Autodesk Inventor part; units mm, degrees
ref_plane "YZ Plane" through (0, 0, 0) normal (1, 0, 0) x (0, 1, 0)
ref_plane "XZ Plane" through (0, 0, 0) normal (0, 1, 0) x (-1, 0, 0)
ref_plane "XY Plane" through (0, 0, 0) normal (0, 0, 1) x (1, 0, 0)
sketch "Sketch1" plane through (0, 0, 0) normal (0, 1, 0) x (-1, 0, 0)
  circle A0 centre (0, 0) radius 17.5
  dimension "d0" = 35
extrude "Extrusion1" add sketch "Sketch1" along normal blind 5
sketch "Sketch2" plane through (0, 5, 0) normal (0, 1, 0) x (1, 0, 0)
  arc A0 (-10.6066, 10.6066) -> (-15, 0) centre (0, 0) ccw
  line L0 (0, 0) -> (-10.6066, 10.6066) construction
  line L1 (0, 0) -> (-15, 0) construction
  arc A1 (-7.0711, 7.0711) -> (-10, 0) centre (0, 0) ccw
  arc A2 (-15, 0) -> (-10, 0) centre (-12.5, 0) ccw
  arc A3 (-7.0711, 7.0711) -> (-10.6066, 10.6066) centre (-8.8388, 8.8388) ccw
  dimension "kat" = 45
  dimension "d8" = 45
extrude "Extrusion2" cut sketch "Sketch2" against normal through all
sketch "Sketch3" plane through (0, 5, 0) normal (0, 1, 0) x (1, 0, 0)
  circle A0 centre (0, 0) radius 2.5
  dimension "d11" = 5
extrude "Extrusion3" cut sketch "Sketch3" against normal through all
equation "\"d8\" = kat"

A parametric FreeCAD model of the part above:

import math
import FreeCAD as App
import Part
import Sketcher

V = App.Vector
Q = App.Units.Quantity

doc = App.newDocument("Part")
body = doc.addObject("PartDesign::Body", "Body")

# Sketch on XZ plane
sketch1 = body.newObject("Sketcher::SketchObject", "Sketch")
sketch1.AttachmentSupport = (doc.getObject("XZ_Plane"), [""])
sketch1.MapMode = "FlatFace"
sketch1.addGeometry(Part.Circle(V(0, 0, 0), V(0, 0, 1), 18), False)
sketch1.addConstraint(Sketcher.Constraint("Coincident", 0, 3, -1, 1))
sketch1.addConstraint(Sketcher.Constraint("Diameter", 0, Q("35 mm")))
pad1 = body.newObject("PartDesign::Pad", "Pad")
pad1.Profile = sketch1
pad1.Length = 5
pad1.Reversed = True

# Sketch on XZ plane
sketch2 = body.newObject("Sketcher::SketchObject", "Sketch001")
sketch2.AttachmentSupport = (doc.getObject("XZ_Plane"), [""])
sketch2.MapMode = "FlatFace"
sketch2.AttachmentOffset = App.Placement(V(0, 0, -5), App.Rotation())
sketch2.addGeometry(Part.ArcOfCircle(Part.Circle(V(-8.8, -8.8, 0), V(0, 0, 1), 2.5), math.radians(-135), math.radians(45)), False)
sketch2.addGeometry(Part.ArcOfCircle(Part.Circle(V(0, 0, 0), V(0, 0, 1), 15), math.radians(180), math.radians(225)), False)
sketch2.addGeometry(Part.ArcOfCircle(Part.Circle(V(-12.5, 0, 0), V(0, 0, 1), 2.5), math.radians(0), math.radians(180)), False)
sketch2.addGeometry(Part.ArcOfCircle(Part.Circle(V(0, 0, 0), V(0, 0, 1), 10), math.radians(180), math.radians(225)), False)
sketch2.addConstraint(Sketcher.Constraint("Tangent", 0, 1, 1, 2))
sketch2.addConstraint(Sketcher.Constraint("Tangent", 1, 1, 2, 2))
sketch2.addConstraint(Sketcher.Constraint("Tangent", 2, 1, 3, 1))
sketch2.addConstraint(Sketcher.Constraint("Tangent", 3, 2, 0, 2))
sketch2.addConstraint(Sketcher.Constraint("Coincident", 1, 3, -1, 1))
sketch2.addConstraint(Sketcher.Constraint("Coincident", 3, 3, -1, 1))
sketch2.addConstraint(Sketcher.Constraint("PointOnObject", 2, 3, -1))
sketch2.addConstraint(Sketcher.Constraint("Radius", 1, Q("15 mm")))
sketch2.addConstraint(Sketcher.Constraint("Radius", 3, Q("10 mm")))
sketch2.addConstraint(Sketcher.Constraint("DistanceX", 3, 2, -1, 1, Q("7.071 mm")))
pocket1 = body.newObject("PartDesign::Pocket", "Pocket")
pocket1.Profile = sketch2
pocket1.Type = "ThroughAll"
pocket1.Reversed = True

# Sketch on XZ plane
sketch3 = body.newObject("Sketcher::SketchObject", "Sketch002")
sketch3.AttachmentSupport = (doc.getObject("XZ_Plane"), [""])
sketch3.MapMode = "FlatFace"
sketch3.AttachmentOffset = App.Placement(V(0, 0, -5), App.Rotation())
sketch3.addGeometry(Part.Circle(V(0, 0, 0), V(0, 0, 1), 2.5), False)
sketch3.addConstraint(Sketcher.Constraint("Coincident", 0, 3, -1, 1))
sketch3.addConstraint(Sketcher.Constraint("Diameter", 0, Q("5 mm")))
pocket2 = body.newObject("PartDesign::Pocket", "Pocket001")
pocket2.Profile = sketch3
pocket2.Type = "ThroughAll"
pocket2.Reversed = True

doc.recompute()
